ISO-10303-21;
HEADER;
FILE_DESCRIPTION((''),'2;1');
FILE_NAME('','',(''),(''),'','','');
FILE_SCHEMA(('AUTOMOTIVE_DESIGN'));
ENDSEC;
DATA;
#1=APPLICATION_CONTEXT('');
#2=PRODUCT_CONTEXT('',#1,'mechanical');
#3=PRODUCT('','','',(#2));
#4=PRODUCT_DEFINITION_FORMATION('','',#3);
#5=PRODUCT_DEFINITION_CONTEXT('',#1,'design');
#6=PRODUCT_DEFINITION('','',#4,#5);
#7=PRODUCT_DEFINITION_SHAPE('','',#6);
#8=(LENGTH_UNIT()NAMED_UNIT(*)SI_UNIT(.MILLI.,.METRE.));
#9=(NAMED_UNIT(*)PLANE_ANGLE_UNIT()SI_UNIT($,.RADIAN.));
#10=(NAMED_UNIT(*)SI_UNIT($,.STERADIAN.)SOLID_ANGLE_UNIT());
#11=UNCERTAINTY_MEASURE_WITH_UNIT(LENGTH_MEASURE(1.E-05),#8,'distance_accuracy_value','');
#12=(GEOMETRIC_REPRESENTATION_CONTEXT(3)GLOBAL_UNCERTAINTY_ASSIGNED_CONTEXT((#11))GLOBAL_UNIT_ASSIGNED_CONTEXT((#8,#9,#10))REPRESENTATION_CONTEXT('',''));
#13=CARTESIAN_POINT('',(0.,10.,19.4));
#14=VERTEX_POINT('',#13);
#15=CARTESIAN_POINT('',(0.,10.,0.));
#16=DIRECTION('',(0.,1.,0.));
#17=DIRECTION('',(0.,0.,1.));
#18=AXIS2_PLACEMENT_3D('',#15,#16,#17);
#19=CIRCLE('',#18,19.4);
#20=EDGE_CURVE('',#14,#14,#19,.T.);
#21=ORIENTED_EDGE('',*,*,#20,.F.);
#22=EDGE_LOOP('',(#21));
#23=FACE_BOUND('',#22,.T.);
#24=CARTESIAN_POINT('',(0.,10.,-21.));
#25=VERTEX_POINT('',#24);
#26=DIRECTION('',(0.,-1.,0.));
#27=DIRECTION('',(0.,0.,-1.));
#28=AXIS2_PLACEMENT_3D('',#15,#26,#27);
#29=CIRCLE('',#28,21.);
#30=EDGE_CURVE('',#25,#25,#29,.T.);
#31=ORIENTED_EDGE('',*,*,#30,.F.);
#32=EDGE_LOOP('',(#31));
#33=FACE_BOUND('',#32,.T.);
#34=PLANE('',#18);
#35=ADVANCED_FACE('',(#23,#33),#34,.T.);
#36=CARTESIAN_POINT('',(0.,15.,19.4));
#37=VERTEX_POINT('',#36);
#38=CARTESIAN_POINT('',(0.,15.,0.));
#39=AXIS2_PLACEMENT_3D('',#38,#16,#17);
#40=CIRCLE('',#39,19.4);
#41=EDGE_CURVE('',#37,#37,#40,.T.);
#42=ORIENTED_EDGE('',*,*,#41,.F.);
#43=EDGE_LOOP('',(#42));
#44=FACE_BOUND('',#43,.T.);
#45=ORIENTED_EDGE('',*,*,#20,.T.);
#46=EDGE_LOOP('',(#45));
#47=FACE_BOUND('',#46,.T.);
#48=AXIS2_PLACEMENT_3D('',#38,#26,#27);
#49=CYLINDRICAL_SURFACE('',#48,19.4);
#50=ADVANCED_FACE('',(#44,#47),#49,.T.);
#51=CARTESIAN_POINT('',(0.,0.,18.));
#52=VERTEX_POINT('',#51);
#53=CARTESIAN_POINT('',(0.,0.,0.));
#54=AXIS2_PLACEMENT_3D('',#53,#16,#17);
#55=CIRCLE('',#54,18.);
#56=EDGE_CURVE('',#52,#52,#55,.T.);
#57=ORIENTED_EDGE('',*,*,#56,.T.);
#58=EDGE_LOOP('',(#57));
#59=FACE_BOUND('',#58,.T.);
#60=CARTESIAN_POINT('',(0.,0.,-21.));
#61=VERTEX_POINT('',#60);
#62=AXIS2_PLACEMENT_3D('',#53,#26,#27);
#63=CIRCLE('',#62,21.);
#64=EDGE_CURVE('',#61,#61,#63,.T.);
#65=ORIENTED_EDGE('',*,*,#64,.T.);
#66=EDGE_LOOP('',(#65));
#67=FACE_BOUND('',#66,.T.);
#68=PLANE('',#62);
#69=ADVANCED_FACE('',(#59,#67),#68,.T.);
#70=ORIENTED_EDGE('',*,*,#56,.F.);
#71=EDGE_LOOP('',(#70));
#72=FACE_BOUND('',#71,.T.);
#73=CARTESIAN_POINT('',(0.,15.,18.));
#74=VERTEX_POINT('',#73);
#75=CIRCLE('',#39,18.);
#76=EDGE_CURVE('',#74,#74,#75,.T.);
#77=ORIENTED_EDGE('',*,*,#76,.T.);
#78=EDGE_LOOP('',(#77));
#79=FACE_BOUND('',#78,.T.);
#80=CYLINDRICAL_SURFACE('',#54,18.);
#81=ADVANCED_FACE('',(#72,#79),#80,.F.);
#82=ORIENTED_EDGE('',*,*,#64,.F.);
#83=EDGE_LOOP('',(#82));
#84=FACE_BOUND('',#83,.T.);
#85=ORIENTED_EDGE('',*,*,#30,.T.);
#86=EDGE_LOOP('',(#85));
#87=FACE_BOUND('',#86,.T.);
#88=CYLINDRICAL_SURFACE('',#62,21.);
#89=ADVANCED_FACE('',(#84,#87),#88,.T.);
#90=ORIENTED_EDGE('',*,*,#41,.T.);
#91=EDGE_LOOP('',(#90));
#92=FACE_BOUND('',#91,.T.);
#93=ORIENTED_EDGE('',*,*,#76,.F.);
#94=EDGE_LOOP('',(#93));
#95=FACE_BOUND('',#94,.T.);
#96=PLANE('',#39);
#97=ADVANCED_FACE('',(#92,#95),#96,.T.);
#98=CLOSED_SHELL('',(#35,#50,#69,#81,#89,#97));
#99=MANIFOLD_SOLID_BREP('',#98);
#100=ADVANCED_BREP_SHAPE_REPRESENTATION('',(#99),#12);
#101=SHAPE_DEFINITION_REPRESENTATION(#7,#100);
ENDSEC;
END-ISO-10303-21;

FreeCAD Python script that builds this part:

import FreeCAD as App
import Part
import Sketcher

V = App.Vector

doc = App.newDocument("Part")
body = doc.addObject("PartDesign::Body", "Body")

# Sketch on XY plane
sketch1 = body.newObject("Sketcher::SketchObject", "Sketch")
sketch1.AttachmentSupport = (doc.getObject("XY_Plane"), [""])
sketch1.MapMode = "FlatFace"
sketch1.addGeometry([
    Part.LineSegment(V(0, 10, 0), V(0, 0, 0)),
    Part.LineSegment(V(0, 0, 0), V(21, 0, 0)),
    Part.LineSegment(V(21, 0, 0), V(21, 10, 0)),
    Part.LineSegment(V(21, 10, 0), V(0, 10, 0)),
], False)
sketch1.addConstraint([
    Sketcher.Constraint("Coincident", 0, 2, 1, 1),
    Sketcher.Constraint("Coincident", 1, 2, 2, 1),
    Sketcher.Constraint("Coincident", 2, 2, 3, 1),
    Sketcher.Constraint("Coincident", 3, 2, 0, 1),
    Sketcher.Constraint("Vertical", 0),
    Sketcher.Constraint("Horizontal", 1),
    Sketcher.Constraint("Vertical", 2),
    Sketcher.Constraint("Horizontal", 3),
    Sketcher.Constraint("Coincident", 0, 2, -1, 1),
    Sketcher.Constraint("DistanceX", 1, 1, 1, 2, 21.0),
    Sketcher.Constraint("DistanceY", 0, 2, 0, 1, 10.0),
])
revolution = body.newObject("PartDesign::Revolution", "Revolution")
revolution.Profile = sketch1
revolution.ReferenceAxis = (sketch1, ["V_Axis"])
revolution.Angle = 360

# Sketch on XZ plane
sketch2 = body.newObject("Sketcher::SketchObject", "Sketch001")
sketch2.AttachmentSupport = (doc.getObject("XZ_Plane"), [""])
sketch2.MapMode = "FlatFace"
sketch2.AttachmentOffset = App.Placement(V(0, 0, -10), App.Rotation())
sketch2.addGeometry(Part.Circle(V(0, 0, 0), V(0, 0, 1), 18), False)
sketch2.addConstraint([
    Sketcher.Constraint("Coincident", 0, 3, -1, 1),
    Sketcher.Constraint("Diameter", 0, 36.0),
])
pocket1 = body.newObject("PartDesign::Pocket", "Pocket")
pocket1.Profile = sketch2
pocket1.Type = "ThroughAll"
pocket1.Reversed = True

# Sketch on XZ plane
sketch3 = body.newObject("Sketcher::SketchObject", "Sketch002")
sketch3.AttachmentSupport = (doc.getObject("XZ_Plane"), [""])
sketch3.MapMode = "FlatFace"
sketch3.AttachmentOffset = App.Placement(V(0, 0, -10), App.Rotation())
sketch3.addGeometry(Part.Circle(V(0, 0, 0), V(0, 0, 1), 19), False)
sketch3.addConstraint([
    Sketcher.Constraint("Coincident", 0, 3, -1, 1),
    Sketcher.Constraint("Diameter", 0, 38.8),
])
pad1 = body.newObject("PartDesign::Pad", "Pad")
pad1.Profile = sketch3
pad1.Length = 5
pad1.Reversed = True

# Sketch on XZ plane
sketch4 = body.newObject("Sketcher::SketchObject", "Sketch003")
sketch4.AttachmentSupport = (doc.getObject("XZ_Plane"), [""])
sketch4.MapMode = "FlatFace"
sketch4.AttachmentOffset = App.Placement(V(0, 0, -15), App.Rotation())
sketch4.addGeometry(Part.Circle(V(0, 0, 0), V(0, 0, 1), 18), False)
sketch4.addConstraint([
    Sketcher.Constraint("Coincident", 0, 3, -1, 1),
    Sketcher.Constraint("Diameter", 0, 36.0),
])
pocket2 = body.newObject("PartDesign::Pocket", "Pocket001")
pocket2.Profile = sketch4
pocket2.Type = "ThroughAll"
pocket2.Reversed = True

doc.recompute()
